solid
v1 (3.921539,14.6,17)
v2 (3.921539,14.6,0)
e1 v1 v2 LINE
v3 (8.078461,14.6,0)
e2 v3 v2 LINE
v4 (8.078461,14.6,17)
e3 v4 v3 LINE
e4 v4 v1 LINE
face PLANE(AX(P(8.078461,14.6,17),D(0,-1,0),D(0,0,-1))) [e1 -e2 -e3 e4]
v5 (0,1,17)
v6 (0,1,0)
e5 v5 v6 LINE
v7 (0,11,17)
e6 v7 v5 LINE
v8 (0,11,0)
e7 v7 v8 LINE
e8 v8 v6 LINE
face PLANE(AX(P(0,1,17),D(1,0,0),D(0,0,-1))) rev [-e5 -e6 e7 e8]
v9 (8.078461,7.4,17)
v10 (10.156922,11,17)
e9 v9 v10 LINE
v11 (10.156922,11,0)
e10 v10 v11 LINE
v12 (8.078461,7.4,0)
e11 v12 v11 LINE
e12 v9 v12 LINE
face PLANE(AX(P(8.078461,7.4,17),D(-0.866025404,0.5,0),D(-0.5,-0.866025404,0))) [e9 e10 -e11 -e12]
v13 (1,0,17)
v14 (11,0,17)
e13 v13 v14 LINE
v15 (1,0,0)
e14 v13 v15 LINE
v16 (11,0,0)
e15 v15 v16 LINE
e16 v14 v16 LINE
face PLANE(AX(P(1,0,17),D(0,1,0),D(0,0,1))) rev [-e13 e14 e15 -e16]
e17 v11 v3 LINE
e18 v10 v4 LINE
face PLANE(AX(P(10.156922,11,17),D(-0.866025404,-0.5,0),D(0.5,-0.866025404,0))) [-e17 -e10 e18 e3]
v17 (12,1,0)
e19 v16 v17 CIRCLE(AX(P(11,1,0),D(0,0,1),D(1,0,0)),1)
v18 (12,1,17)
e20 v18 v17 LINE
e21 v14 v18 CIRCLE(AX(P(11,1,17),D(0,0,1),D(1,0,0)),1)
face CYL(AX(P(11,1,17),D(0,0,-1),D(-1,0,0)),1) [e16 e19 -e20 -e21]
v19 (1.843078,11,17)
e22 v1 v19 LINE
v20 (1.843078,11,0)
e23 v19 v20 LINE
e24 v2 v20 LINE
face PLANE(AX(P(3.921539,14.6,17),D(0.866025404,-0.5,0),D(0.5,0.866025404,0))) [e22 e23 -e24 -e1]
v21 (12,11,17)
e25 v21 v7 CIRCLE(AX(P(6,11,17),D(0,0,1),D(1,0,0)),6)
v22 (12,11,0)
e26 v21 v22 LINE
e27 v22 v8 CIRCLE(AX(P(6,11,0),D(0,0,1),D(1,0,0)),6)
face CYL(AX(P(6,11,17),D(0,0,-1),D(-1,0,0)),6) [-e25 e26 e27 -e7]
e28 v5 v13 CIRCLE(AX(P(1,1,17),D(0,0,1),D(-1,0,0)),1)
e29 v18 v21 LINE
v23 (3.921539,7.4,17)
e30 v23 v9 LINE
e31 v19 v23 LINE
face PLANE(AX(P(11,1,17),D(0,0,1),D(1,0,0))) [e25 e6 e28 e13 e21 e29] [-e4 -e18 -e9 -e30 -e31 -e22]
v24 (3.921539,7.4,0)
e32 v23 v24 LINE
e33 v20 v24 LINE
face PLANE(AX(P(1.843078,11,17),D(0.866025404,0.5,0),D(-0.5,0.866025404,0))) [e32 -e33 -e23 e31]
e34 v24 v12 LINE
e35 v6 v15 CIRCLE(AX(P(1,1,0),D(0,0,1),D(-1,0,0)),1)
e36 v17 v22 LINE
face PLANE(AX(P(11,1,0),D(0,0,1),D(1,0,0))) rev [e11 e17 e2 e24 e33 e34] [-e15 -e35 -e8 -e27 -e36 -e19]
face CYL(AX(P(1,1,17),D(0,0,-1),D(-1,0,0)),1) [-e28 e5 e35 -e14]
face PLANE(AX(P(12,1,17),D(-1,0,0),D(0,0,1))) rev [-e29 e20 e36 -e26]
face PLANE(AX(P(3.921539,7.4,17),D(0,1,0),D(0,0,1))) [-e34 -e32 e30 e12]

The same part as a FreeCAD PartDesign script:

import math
import FreeCAD as App
import Part
import Sketcher

V = App.Vector
Q = App.Units.Quantity

doc = App.newDocument("Part")
body = doc.addObject("PartDesign::Body", "Body")

sketch1 = doc.addObject("Sketcher::SketchObject", "Sketch")
body.addObject(sketch1)
sketch1.AttachmentSupport = (doc.XY_Plane, [""])
sketch1.MapMode = "FlatFace"
sketch1.addGeometry([
    Part.LineSegment(V(1, 0, 0), V(11, 0, 0)),
    Part.ArcOfCircle(Part.Circle(V(11, 1, 0), V(0, 0, 1), 1), math.radians(-90), math.radians(0)),
    Part.LineSegment(V(12, 1, 0), V(12, 11, 0)),
    Part.ArcOfCircle(Part.Circle(V(6, 11, 0), V(0, 0, 1), 6), math.radians(0), math.radians(180)),
    Part.LineSegment(V(0, 11, 0), V(0, 1, 0)),
    Part.ArcOfCircle(Part.Circle(V(1, 1, 0), V(0, 0, 1), 1), math.radians(-180), math.radians(-90)),
    Part.LineSegment(V(8.078461, 14.6, 0), V(10.156922, 11, 0)),
    Part.LineSegment(V(10.156922, 11, 0), V(8.078461, 7.4, 0)),
    Part.LineSegment(V(8.078461, 7.4, 0), V(3.921539, 7.4, 0)),
    Part.LineSegment(V(3.921539, 7.4, 0), V(1.843078, 11, 0)),
    Part.LineSegment(V(1.843078, 11, 0), V(3.921539, 14.6, 0)),
    Part.LineSegment(V(3.921539, 14.6, 0), V(8.078461, 14.6, 0)),
], False)
sketch1.addConstraint([
    Sketcher.Constraint("Tangent", 0, 2, 1, 1),
    Sketcher.Constraint("Tangent", 1, 2, 2, 1),
    Sketcher.Constraint("Tangent", 2, 2, 3, 1),
    Sketcher.Constraint("Tangent", 3, 2, 4, 1),
    Sketcher.Constraint("Tangent", 4, 2, 5, 1),
    Sketcher.Constraint("Tangent", 5, 2, 0, 1),
    Sketcher.Constraint("Coincident", 6, 2, 7, 1),
    Sketcher.Constraint("Coincident", 7, 2, 8, 1),
    Sketcher.Constraint("Coincident", 8, 2, 9, 1),
    Sketcher.Constraint("Coincident", 9, 2, 10, 1),
    Sketcher.Constraint("Coincident", 10, 2, 11, 1),
    Sketcher.Constraint("Coincident", 11, 2, 6, 1),
    Sketcher.Constraint("Horizontal", 0),
    Sketcher.Constraint("Vertical", 2),
    Sketcher.Constraint("Vertical", 4),
    Sketcher.Constraint("Horizontal", 8),
    Sketcher.Constraint("Horizontal", 11),
    Sketcher.Constraint("Equal", 1, 5),
    Sketcher.Constraint("PointOnObject", 0, 2, -1),
    Sketcher.Constraint("PointOnObject", 3, 2, -2),
    Sketcher.Constraint("Parallel", 6, 9),
    Sketcher.Constraint("Parallel", 7, 10),
    Sketcher.Constraint("Horizontal", 3, 2, 6, 2),
    Sketcher.Constraint("Horizontal", 6, 2, 9, 2),
    Sketcher.Constraint("Vertical", 8, 2, 10, 2),
    Sketcher.Constraint("Vertical", 7, 2, 11, 2),
    Sketcher.Constraint("Equal", 0, 2),
    Sketcher.Constraint("Radius", 1, Q("1 mm")),
    Sketcher.Constraint("Radius", 3, Q("6 mm")),
    Sketcher.Constraint("Angle", 6, Q("-60 deg")),
    Sketcher.Constraint("DistanceY", -1, 1, 7, 2, Q("7.4 mm")),
    Sketcher.Constraint("DistanceX", 8, 2, 8, 1, Q("4.156922 mm")),
    Sketcher.Constraint("DistanceX", -1, 1, 6, 2, Q("10.156922 mm")),
])
pad1 = doc.addObject("PartDesign::Pad", "Pad")
body.addObject(pad1)
pad1.Profile = sketch1
pad1.Length = 17

doc.recompute()
